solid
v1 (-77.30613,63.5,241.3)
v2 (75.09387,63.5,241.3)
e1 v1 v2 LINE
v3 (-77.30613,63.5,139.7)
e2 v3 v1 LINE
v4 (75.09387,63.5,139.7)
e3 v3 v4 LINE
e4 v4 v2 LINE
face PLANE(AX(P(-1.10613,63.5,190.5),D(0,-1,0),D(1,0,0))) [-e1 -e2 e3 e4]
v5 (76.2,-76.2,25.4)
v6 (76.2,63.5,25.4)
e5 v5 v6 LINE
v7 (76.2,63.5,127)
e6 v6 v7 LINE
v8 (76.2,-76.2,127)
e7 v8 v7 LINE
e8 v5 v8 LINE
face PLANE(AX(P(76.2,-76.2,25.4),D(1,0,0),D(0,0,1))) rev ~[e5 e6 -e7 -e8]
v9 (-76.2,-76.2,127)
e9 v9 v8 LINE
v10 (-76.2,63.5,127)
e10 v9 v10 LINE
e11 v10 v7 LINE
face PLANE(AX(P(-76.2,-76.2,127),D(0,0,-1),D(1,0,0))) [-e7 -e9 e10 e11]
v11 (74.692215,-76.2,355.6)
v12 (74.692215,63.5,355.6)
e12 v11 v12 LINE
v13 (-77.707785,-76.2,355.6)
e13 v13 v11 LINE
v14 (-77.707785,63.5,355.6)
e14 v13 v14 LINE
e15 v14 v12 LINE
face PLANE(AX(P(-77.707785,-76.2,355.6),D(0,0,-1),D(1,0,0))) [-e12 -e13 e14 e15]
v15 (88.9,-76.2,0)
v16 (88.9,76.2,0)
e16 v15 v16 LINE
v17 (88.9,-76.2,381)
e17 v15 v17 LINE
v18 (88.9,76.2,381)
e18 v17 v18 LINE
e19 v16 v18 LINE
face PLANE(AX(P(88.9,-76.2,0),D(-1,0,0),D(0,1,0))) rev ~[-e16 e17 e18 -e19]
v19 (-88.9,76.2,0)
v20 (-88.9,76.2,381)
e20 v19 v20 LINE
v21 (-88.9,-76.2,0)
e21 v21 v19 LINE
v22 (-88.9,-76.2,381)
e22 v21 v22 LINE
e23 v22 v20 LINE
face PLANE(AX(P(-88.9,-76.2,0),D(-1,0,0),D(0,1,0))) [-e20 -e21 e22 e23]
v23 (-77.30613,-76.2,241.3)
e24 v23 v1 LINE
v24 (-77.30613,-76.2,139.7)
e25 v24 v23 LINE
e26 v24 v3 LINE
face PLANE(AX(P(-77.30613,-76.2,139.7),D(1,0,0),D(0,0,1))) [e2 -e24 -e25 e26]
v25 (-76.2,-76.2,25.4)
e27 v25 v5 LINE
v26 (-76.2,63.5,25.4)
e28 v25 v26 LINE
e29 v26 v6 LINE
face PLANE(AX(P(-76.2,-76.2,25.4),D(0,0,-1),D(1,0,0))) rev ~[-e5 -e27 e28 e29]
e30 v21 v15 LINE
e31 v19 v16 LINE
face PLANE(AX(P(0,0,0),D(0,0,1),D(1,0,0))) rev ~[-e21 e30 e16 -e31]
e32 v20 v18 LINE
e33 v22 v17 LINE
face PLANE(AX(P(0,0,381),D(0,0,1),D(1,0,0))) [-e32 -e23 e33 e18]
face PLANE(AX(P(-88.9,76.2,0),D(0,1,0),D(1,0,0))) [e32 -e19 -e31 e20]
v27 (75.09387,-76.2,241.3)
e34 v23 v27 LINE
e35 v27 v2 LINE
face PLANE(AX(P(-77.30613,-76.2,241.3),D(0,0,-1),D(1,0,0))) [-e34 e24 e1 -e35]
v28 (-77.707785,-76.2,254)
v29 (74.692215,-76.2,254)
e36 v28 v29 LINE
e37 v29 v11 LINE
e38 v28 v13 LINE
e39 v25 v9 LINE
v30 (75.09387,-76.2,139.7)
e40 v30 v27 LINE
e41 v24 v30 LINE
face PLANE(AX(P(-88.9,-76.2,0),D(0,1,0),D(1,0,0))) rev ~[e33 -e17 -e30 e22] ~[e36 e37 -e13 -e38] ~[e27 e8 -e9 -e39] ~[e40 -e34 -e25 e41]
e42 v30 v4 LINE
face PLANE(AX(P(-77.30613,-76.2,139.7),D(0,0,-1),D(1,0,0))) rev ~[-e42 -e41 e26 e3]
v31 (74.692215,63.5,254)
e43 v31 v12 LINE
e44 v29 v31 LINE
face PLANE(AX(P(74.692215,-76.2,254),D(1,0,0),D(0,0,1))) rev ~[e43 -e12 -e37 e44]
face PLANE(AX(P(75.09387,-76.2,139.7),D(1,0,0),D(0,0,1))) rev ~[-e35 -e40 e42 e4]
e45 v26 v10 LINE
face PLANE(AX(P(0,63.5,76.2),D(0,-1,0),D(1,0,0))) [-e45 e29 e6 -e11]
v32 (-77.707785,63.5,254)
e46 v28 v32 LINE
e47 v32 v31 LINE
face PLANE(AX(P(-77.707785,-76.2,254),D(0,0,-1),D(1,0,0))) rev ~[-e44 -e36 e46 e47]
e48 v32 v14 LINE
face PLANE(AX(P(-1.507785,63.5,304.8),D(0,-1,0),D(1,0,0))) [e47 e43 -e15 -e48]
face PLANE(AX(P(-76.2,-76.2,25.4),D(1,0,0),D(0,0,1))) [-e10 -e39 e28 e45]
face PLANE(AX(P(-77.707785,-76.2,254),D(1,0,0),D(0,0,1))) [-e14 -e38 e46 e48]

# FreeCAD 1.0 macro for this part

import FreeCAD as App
import Part
import Sketcher
Q = App.Units.Quantity


def add_polygon(sketch, points):
    """Adds a closed chain of lines whose ends are joined by coincident constraints."""
    first, n = sketch.GeometryCount, len(points)
    for a, b in zip(points, points[1:] + points[:1]):
        sketch.addGeometry(Part.LineSegment(App.Vector(*a, 0), App.Vector(*b, 0)), False)
    for i in range(n):
        sketch.addConstraint(Sketcher.Constraint("Coincident", first + i, 2, first + (i + 1) % n, 1))

doc = App.newDocument("Part")
body = doc.addObject("PartDesign::Body", "Body")

# Sketch on XY plane
sketch1 = doc.addObject("Sketcher::SketchObject", "Sketch")
body.addObject(sketch1)
sketch1.AttachmentSupport = (doc.XY_Plane, [""])
sketch1.MapMode = "FlatFace"
add_polygon(sketch1, [(-88.9, 76.2), (-88.9, -76.2), (88.9, -76.2), (88.9, 76.2)])  # lines 0-3
sketch1.addConstraint(Sketcher.Constraint("Vertical", 0))
sketch1.addConstraint(Sketcher.Constraint("Horizontal", 1))
sketch1.addConstraint(Sketcher.Constraint("Vertical", 2))
sketch1.addConstraint(Sketcher.Constraint("Horizontal", 3))
sketch1.addConstraint(Sketcher.Constraint("Symmetric", 0, 2, 2, 2, -1, 1))
sketch1.addConstraint(Sketcher.Constraint("DistanceX", 1, 1, 1, 2, Q("7 in")))
sketch1.addConstraint(Sketcher.Constraint("DistanceY", 0, 2, 0, 1, Q("6 in")))
pad1 = doc.addObject("PartDesign::Pad", "Pad")
body.addObject(pad1)
pad1.Profile = sketch1
pad1.Length = Q("15 in")

# Sketch on XZ plane
sketch2 = doc.addObject("Sketcher::SketchObject", "Sketch001")
body.addObject(sketch2)
sketch2.AttachmentSupport = (doc.XZ_Plane, [""])
sketch2.MapMode = "FlatFace"
sketch2.AttachmentOffset = App.Placement(App.Vector(0, 0, 3 * 25.4), App.Rotation())
add_polygon(sketch2, [(-77.707785, 355.6), (-77.707785, 254), (74.692215, 254), (74.692215, 355.6)])  # lines 0-3
sketch2.addConstraint(Sketcher.Constraint("Vertical", 0))
sketch2.addConstraint(Sketcher.Constraint("Horizontal", 1))
sketch2.addConstraint(Sketcher.Constraint("Vertical", 2))
sketch2.addConstraint(Sketcher.Constraint("Horizontal", 3))
sketch2.addConstraint(Sketcher.Constraint("DistanceX", 1, 1, 1, 2, Q("6 in")))
sketch2.addConstraint(Sketcher.Constraint("DistanceY", 0, 2, 0, 1, Q("4 in")))
sketch2.addConstraint(Sketcher.Constraint("DistanceY", -1, 1, 0, 2, Q("10 in")))
sketch2.addConstraint(Sketcher.Constraint("DistanceX", 0, 2, -1, 1, 77.707785))
pocket1 = doc.addObject("PartDesign::Pocket", "Pocket")
body.addObject(pocket1)
pocket1.Profile = sketch2
pocket1.Length = Q("5.5 in")

# Sketch on XZ plane
sketch3 = doc.addObject("Sketcher::SketchObject", "Sketch002")
body.addObject(sketch3)
sketch3.AttachmentSupport = (doc.XZ_Plane, [""])
sketch3.MapMode = "FlatFace"
sketch3.AttachmentOffset = App.Placement(App.Vector(0, 0, 3 * 25.4), App.Rotation())
add_polygon(sketch3, [(-77.30613, 241.3), (-77.30613, 139.7), (75.09387, 139.7), (75.09387, 241.3)])  # lines 0-3
sketch3.addConstraint(Sketcher.Constraint("Vertical", 0))
sketch3.addConstraint(Sketcher.Constraint("Horizontal", 1))
sketch3.addConstraint(Sketcher.Constraint("Vertical", 2))
sketch3.addConstraint(Sketcher.Constraint("Horizontal", 3))
sketch3.addConstraint(Sketcher.Constraint("DistanceX", 1, 1, 1, 2, Q("6 in")))
sketch3.addConstraint(Sketcher.Constraint("DistanceY", 0, 2, 0, 1, Q("4 in")))
sketch3.addConstraint(Sketcher.Constraint("DistanceY", -1, 1, 0, 2, Q("5.5 in")))
sketch3.addConstraint(Sketcher.Constraint("DistanceX", 0, 2, -1, 1, 77.30613))
pocket2 = doc.addObject("PartDesign::Pocket", "Pocket001")
body.addObject(pocket2)
pocket2.Profile = sketch3
pocket2.Length = Q("5.5 in")

# Sketch on XZ plane
sketch4 = doc.addObject("Sketcher::SketchObject", "Sketch003")
body.addObject(sketch4)
sketch4.AttachmentSupport = (doc.XZ_Plane, [""])
sketch4.MapMode = "FlatFace"
sketch4.AttachmentOffset = App.Placement(App.Vector(0, 0, 3 * 25.4), App.Rotation())
add_polygon(sketch4, [(-76.2, 127), (-76.2, 25.4), (76.2, 25.4), (76.2, 127)])  # lines 0-3
sketch4.addConstraint(Sketcher.Constraint("Vertical", 0))
sketch4.addConstraint(Sketcher.Constraint("Horizontal", 1))
sketch4.addConstraint(Sketcher.Constraint("Vertical", 2))
sketch4.addConstraint(Sketcher.Constraint("Horizontal", 3))
sketch4.addConstraint(Sketcher.Constraint("DistanceX", 1, 1, 1, 2, Q("6 in")))
sketch4.addConstraint(Sketcher.Constraint("DistanceY", 0, 2, 0, 1, Q("4 in")))
sketch4.addConstraint(Sketcher.Constraint("DistanceX", 0, 2, -1, 1, Q("3 in")))
sketch4.addConstraint(Sketcher.Constraint("DistanceY", -1, 1, 0, 2, Q("1 in")))
pocket3 = doc.addObject("PartDesign::Pocket", "Pocket002")
body.addObject(pocket3)
pocket3.Profile = sketch4
pocket3.Length = Q("5.5 in")

doc.recompute()
